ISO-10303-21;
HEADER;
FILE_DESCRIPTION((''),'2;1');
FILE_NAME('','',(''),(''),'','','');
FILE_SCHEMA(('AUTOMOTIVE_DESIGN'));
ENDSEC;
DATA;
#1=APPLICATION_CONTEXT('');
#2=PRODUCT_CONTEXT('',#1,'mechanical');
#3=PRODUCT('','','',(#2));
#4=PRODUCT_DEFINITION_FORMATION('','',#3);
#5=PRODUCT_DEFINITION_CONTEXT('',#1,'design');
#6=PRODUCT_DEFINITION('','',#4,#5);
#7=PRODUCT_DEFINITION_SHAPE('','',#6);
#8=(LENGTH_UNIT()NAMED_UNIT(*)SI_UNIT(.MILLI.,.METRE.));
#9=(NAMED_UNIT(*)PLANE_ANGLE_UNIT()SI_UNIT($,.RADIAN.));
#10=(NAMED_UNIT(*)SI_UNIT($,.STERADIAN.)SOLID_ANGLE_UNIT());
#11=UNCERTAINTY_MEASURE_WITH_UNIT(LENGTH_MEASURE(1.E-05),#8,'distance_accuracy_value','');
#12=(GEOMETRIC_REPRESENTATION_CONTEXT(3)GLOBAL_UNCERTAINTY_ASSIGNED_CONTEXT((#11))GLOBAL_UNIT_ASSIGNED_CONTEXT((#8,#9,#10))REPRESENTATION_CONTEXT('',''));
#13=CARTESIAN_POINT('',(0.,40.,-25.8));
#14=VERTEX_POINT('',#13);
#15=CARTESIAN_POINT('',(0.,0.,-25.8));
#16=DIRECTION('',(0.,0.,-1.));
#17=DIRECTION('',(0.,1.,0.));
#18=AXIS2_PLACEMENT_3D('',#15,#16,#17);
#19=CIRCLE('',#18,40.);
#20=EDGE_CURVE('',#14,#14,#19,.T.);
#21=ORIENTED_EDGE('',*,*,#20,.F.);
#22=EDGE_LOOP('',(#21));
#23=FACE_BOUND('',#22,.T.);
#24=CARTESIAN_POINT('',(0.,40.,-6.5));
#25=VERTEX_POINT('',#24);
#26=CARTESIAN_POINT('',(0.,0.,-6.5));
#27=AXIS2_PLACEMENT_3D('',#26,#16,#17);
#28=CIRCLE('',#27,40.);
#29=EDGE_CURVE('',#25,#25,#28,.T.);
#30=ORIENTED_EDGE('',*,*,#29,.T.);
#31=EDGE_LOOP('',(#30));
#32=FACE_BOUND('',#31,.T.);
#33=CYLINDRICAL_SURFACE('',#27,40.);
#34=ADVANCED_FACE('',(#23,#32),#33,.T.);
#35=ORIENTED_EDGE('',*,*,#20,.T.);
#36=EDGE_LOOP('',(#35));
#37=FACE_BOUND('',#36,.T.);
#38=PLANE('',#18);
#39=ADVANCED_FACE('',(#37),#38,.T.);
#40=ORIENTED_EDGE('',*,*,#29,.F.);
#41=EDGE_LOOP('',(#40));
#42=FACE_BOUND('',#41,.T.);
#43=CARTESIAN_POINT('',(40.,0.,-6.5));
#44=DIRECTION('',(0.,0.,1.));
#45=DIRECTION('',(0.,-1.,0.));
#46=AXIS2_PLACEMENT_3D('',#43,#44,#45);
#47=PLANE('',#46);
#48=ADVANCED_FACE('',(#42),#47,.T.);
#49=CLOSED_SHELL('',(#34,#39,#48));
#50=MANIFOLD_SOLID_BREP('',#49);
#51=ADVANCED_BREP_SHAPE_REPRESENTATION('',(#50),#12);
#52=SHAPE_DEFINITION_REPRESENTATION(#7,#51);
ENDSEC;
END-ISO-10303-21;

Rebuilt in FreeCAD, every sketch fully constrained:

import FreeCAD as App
import Part
import Sketcher

V = App.Vector

doc = App.newDocument("Part")
body = doc.addObject("PartDesign::Body", "Body")

# Sketch on XZ plane
sketch1 = body.newObject("Sketcher::SketchObject", "Sketch")
sketch1.AttachmentSupport = (doc.getObject("XZ_Plane"), [""])
sketch1.MapMode = "FlatFace"
sketch1.addGeometry(Part.LineSegment(V(0, -6.5, 0), V(0, -25.8, 0)), False)
sketch1.addGeometry(Part.LineSegment(V(0, -25.8, 0), V(40, -25.8, 0)), False)
sketch1.addGeometry(Part.LineSegment(V(40, -25.8, 0), V(40, -6.5, 0)), False)
sketch1.addGeometry(Part.LineSegment(V(40, -6.5, 0), V(0, -6.5, 0)), False)
sketch1.addConstraint(Sketcher.Constraint("Coincident", 0, 2, 1, 1))
sketch1.addConstraint(Sketcher.Constraint("Coincident", 1, 2, 2, 1))
sketch1.addConstraint(Sketcher.Constraint("Coincident", 2, 2, 3, 1))
sketch1.addConstraint(Sketcher.Constraint("Coincident", 3, 2, 0, 1))
sketch1.addConstraint(Sketcher.Constraint("Vertical", 0))
sketch1.addConstraint(Sketcher.Constraint("Horizontal", 1))
sketch1.addConstraint(Sketcher.Constraint("Vertical", 2))
sketch1.addConstraint(Sketcher.Constraint("Horizontal", 3))
sketch1.addConstraint(Sketcher.Constraint("PointOnObject", 0, 2, -2))
sketch1.addConstraint(Sketcher.Constraint("DistanceX", 1, 1, 1, 2, 40.0))
sketch1.addConstraint(Sketcher.Constraint("DistanceY", 0, 2, 0, 1, 19.3))
sketch1.addConstraint(Sketcher.Constraint("DistanceY", 0, 2, -1, 1, 25.8))
revolution = body.newObject("PartDesign::Revolution", "Revolution")
revolution.Profile = sketch1
revolution.ReferenceAxis = (sketch1, ["V_Axis"])
revolution.Angle = 360

doc.recompute()
